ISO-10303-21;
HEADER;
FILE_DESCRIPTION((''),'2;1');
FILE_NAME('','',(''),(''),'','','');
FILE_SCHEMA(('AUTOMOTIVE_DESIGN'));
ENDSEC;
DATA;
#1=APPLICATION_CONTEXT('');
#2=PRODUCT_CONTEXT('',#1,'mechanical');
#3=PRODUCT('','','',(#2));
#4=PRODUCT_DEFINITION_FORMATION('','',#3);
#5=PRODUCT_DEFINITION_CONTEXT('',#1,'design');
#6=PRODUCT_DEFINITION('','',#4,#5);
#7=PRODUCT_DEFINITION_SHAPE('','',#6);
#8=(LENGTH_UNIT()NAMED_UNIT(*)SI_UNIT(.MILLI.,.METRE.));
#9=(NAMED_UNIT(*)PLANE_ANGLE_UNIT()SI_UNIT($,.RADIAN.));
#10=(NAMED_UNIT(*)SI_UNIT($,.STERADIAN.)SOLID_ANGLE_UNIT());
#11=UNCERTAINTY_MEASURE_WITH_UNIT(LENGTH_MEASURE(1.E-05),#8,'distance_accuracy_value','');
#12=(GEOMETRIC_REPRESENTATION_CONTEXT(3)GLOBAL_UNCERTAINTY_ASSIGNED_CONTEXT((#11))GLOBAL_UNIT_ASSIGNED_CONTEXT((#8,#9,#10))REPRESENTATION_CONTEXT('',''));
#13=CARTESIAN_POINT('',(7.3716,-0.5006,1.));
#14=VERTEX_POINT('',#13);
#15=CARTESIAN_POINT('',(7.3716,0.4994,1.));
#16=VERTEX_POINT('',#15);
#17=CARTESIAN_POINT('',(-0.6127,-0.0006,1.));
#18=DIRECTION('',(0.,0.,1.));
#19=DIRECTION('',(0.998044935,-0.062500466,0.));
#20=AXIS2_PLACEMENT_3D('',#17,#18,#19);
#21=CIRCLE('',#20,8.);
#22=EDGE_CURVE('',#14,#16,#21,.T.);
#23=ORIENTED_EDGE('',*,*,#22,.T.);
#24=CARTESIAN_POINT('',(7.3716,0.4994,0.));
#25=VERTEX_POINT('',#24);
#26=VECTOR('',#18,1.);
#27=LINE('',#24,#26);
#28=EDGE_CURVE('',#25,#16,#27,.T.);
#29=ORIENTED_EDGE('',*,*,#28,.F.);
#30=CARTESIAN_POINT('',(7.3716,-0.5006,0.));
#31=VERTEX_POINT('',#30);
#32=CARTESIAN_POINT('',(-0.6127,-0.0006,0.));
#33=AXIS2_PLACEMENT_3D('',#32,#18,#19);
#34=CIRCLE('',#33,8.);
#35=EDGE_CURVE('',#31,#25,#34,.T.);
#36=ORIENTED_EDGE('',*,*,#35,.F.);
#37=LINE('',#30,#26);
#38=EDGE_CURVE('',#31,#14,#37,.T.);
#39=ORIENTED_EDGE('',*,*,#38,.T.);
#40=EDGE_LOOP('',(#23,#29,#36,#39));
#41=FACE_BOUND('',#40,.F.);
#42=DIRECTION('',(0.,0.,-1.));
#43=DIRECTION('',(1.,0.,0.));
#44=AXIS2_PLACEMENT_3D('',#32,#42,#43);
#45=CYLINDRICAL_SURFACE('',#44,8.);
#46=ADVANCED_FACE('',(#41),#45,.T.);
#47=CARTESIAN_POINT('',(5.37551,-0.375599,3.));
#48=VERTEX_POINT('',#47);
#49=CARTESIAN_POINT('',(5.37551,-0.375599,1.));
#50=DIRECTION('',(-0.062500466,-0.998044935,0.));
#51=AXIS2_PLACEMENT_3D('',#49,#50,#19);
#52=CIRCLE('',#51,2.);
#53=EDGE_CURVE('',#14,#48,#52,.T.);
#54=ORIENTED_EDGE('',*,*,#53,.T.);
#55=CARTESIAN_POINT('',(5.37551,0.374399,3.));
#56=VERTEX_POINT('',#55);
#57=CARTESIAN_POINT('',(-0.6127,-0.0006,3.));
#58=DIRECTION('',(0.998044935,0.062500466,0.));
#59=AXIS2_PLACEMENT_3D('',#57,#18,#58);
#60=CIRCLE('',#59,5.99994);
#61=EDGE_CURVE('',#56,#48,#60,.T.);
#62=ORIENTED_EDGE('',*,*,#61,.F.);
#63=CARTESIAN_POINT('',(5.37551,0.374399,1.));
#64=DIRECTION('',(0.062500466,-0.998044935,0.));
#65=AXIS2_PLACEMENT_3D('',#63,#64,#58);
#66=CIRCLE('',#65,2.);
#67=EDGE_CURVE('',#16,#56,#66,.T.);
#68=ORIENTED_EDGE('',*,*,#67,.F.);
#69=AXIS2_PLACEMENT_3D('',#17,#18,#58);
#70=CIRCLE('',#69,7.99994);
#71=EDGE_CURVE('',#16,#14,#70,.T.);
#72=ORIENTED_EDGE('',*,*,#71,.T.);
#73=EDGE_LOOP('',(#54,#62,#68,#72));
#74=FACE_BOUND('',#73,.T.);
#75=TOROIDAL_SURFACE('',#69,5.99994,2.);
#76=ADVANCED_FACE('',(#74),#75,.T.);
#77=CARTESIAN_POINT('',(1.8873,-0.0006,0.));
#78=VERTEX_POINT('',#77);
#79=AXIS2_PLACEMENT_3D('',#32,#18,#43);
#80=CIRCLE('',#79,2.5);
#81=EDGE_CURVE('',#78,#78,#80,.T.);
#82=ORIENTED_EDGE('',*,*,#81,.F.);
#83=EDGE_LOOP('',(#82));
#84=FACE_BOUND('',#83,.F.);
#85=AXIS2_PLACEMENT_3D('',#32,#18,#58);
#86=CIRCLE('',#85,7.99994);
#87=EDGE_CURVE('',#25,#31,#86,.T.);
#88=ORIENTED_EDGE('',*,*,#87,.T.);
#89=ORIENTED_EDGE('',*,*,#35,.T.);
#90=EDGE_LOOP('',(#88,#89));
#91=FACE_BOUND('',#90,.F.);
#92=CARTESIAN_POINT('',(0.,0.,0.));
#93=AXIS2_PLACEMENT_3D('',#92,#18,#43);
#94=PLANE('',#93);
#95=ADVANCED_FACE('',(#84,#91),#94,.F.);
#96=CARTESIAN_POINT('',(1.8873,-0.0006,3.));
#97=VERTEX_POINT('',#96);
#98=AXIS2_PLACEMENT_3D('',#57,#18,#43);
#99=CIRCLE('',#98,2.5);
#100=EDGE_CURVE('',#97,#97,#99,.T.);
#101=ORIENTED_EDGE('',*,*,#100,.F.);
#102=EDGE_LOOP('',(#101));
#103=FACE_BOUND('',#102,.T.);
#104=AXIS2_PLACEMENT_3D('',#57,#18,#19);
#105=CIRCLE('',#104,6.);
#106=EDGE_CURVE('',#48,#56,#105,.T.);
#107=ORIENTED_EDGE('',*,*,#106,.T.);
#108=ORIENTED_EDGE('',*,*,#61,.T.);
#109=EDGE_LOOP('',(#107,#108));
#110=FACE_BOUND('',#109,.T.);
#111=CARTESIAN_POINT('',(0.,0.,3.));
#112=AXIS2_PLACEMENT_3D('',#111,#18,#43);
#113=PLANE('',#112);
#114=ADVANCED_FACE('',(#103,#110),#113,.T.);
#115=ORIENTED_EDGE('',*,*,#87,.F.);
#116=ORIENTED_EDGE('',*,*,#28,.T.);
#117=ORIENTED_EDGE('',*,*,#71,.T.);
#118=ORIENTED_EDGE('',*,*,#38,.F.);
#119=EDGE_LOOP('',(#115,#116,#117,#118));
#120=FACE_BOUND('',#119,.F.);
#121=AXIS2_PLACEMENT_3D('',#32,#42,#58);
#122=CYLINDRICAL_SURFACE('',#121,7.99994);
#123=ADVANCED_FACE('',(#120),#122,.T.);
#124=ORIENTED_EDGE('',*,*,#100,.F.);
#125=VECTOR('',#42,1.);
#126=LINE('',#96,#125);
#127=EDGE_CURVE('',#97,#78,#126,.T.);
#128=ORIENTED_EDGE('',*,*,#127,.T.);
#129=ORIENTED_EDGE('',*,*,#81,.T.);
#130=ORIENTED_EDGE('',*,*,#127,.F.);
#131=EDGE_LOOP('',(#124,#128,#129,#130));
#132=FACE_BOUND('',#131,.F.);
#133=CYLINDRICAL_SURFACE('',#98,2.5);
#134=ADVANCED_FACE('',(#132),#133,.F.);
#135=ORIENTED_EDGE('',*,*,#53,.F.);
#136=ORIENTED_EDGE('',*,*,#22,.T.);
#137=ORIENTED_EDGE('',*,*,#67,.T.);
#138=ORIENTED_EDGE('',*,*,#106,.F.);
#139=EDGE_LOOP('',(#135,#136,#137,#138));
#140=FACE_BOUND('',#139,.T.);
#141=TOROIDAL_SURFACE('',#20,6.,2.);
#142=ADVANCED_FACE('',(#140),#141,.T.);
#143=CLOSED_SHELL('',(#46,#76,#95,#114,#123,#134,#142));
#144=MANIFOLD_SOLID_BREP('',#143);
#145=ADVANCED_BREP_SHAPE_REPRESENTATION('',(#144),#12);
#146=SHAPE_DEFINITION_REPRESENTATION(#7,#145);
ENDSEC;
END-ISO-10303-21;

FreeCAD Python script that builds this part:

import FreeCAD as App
import Part
import Sketcher

V = App.Vector
Q = App.Units.Quantity


def edges_at(feature, points):
    """Names of the edges that pass closest to the given points."""
    edges = feature.Shape.Edges
    near = lambda p: min(range(len(edges)), key=lambda i: edges[i].distToShape(Part.Vertex(*p))[0])
    return sorted({f"Edge{near(p) + 1}" for p in points})

doc = App.newDocument("Part")
body = doc.addObject("PartDesign::Body", "Body")

sketch1 = doc.addObject("Sketcher::SketchObject", "Sketch")
body.addObject(sketch1)
sketch1.AttachmentSupport = (doc.XY_Plane, [""])
sketch1.MapMode = "FlatFace"
sketch1.addGeometry(Part.Circle(V(-1, 0, 0), V(0, 0, 1), 8), False)
sketch1.addConstraint(Sketcher.Constraint("Diameter", 0, Q("16 mm")))
sketch1.addConstraint(Sketcher.Constraint("DistanceX", 0, 3, -1, 1, Q("0.6127 mm")))
sketch1.addConstraint(Sketcher.Constraint("DistanceY", 0, 3, -1, 1, Q("0.0006 mm")))
pad1 = doc.addObject("PartDesign::Pad", "Pad")
body.addObject(pad1)
pad1.Profile = sketch1
pad1.Length = 3
doc.recompute()

fillet = doc.addObject("PartDesign::Fillet", "Fillet")
body.addObject(fillet)
fillet.Base = (pad1, edges_at(pad1, [(-8.613, -0.001, 3)]))
fillet.Radius = 2

sketch2 = doc.addObject("Sketcher::SketchObject", "Sketch001")
body.addObject(sketch2)
sketch2.AttachmentSupport = (doc.XY_Plane, [""])
sketch2.MapMode = "FlatFace"
sketch2.AttachmentOffset = App.Placement(V(0, 0, 3), App.Rotation())
sketch2.addGeometry(Part.Circle(V(-0.6, 0, 0), V(0, 0, 1), 2.5), False)
sketch2.addConstraint(Sketcher.Constraint("Diameter", 0, Q("5 mm")))
sketch2.addConstraint(Sketcher.Constraint("DistanceX", 0, 3, -1, 1, Q("0.6127 mm")))
sketch2.addConstraint(Sketcher.Constraint("DistanceY", 0, 3, -1, 1, Q("0.0006 mm")))
pocket1 = doc.addObject("PartDesign::Pocket", "Pocket")
body.addObject(pocket1)
pocket1.Profile = sketch2
pocket1.Length = 3

doc.recompute()
